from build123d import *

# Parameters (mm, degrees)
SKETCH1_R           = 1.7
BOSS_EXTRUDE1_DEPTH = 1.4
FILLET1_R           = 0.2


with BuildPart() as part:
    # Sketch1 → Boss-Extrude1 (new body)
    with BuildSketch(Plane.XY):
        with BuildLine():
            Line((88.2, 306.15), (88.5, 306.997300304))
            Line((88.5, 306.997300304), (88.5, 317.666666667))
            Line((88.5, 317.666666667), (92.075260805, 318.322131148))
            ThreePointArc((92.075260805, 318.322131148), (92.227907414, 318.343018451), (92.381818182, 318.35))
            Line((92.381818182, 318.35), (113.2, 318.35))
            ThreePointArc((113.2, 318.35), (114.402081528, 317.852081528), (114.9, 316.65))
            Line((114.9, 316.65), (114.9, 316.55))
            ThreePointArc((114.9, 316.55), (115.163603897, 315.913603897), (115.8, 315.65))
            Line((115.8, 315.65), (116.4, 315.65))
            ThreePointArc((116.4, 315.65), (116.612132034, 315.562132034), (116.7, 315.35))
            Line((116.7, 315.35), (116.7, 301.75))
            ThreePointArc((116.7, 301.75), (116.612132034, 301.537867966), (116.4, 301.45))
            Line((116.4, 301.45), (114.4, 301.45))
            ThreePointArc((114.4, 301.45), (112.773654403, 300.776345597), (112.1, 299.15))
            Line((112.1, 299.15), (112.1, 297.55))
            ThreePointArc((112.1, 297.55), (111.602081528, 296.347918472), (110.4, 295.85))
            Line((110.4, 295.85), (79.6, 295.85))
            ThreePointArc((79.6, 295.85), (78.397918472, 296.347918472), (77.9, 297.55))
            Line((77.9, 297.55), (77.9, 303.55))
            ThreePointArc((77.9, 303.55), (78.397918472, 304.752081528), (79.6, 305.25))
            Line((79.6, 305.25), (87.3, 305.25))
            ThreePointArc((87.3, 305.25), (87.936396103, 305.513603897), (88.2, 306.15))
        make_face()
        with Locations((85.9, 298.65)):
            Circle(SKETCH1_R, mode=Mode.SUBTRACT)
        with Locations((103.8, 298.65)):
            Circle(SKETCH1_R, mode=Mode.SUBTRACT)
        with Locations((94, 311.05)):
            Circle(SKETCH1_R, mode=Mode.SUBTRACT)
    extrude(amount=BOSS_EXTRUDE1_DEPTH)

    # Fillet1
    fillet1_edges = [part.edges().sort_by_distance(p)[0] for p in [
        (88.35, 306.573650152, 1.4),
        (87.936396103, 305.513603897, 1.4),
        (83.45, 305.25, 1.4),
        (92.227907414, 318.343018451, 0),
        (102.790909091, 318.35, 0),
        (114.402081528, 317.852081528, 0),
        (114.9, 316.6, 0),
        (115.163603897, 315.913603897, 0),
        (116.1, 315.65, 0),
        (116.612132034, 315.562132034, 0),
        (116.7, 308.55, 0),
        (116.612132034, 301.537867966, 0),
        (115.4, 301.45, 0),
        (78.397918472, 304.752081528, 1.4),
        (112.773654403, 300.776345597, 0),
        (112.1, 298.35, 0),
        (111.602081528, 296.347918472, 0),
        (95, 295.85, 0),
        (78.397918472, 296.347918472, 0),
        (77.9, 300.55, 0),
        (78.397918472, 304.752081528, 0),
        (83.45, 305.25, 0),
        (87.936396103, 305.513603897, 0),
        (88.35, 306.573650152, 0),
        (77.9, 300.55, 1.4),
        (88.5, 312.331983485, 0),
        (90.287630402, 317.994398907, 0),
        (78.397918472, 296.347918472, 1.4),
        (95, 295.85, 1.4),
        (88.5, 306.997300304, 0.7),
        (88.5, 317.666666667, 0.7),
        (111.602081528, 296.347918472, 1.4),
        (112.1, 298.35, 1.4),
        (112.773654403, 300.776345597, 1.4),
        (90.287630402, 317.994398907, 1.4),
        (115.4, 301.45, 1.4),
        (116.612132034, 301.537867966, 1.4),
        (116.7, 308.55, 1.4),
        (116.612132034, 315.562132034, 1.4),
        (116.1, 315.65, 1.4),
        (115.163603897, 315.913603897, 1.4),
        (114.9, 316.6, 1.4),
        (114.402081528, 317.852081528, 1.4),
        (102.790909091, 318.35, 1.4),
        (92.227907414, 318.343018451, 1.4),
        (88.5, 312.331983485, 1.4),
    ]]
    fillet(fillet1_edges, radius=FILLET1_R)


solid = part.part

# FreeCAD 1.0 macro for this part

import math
import FreeCAD as App
import Part
import Sketcher


def edges_at(feature, points):
    """Names of the edges that pass closest to the given points."""
    edges = feature.Shape.Edges
    near = lambda p: min(range(len(edges)), key=lambda i: edges[i].distToShape(Part.Vertex(*p))[0])
    return sorted({f"Edge{near(p) + 1}" for p in points})

doc = App.newDocument("Part")
body = doc.addObject("PartDesign::Body", "Body")

# Sketch on XY plane
sketch1 = body.newObject("Sketcher::SketchObject", "Sketch")
sketch1.AttachmentSupport = (doc.getObject("XY_Plane"), [""])
sketch1.MapMode = "FlatFace"
sketch1.addGeometry([
    Part.LineSegment(App.Vector(88.5, 307, 0), App.Vector(88.2, 306.15, 0)),  # 0
    Part.ArcOfCircle(Part.Circle(App.Vector(87.3, 306.15, 0), App.Vector(0, 0, 1), 0.9), math.radians(-90), math.radians(0)),  # 1
    Part.LineSegment(App.Vector(87.3, 305.25, 0), App.Vector(79.6, 305.25, 0)),  # 2
    Part.ArcOfCircle(Part.Circle(App.Vector(79.6, 303.55, 0), App.Vector(0, 0, 1), 1.7), math.radians(90), math.radians(180)),  # 3
    Part.LineSegment(App.Vector(77.9, 303.55, 0), App.Vector(77.9, 297.55, 0)),  # 4
    Part.ArcOfCircle(Part.Circle(App.Vector(79.6, 297.55, 0), App.Vector(0, 0, 1), 1.7), math.radians(180), math.radians(270)),  # 5
    Part.LineSegment(App.Vector(79.6, 295.85, 0), App.Vector(110.4, 295.85, 0)),  # 6
    Part.ArcOfCircle(Part.Circle(App.Vector(110.4, 297.55, 0), App.Vector(0, 0, 1), 1.7), math.radians(-90), math.radians(0)),  # 7
    Part.LineSegment(App.Vector(112.1, 297.55, 0), App.Vector(112.1, 299.15, 0)),  # 8
    Part.ArcOfCircle(Part.Circle(App.Vector(114.4, 299.15, 0), App.Vector(0, 0, 1), 2.3), math.radians(90), math.radians(180)),  # 9
    Part.LineSegment(App.Vector(114.4, 301.45, 0), App.Vector(116.4, 301.45, 0)),  # 10
    Part.ArcOfCircle(Part.Circle(App.Vector(116.4, 301.75, 0), App.Vector(0, 0, 1), 0.3), math.radians(-90), math.radians(0)),  # 11
    Part.LineSegment(App.Vector(116.7, 301.75, 0), App.Vector(116.7, 315.35, 0)),  # 12
    Part.ArcOfCircle(Part.Circle(App.Vector(116.4, 315.35, 0), App.Vector(0, 0, 1), 0.3), math.radians(0), math.radians(90)),  # 13
    Part.LineSegment(App.Vector(116.4, 315.65, 0), App.Vector(115.8, 315.65, 0)),  # 14
    Part.ArcOfCircle(Part.Circle(App.Vector(115.8, 316.55, 0), App.Vector(0, 0, 1), 0.9), math.radians(180), math.radians(270)),  # 15
    Part.LineSegment(App.Vector(114.9, 316.55, 0), App.Vector(114.9, 316.65, 0)),  # 16
    Part.ArcOfCircle(Part.Circle(App.Vector(113.2, 316.65, 0), App.Vector(0, 0, 1), 1.7), math.radians(0), math.radians(90)),  # 17
    Part.LineSegment(App.Vector(113.2, 318.35, 0), App.Vector(92.38, 318.35, 0)),  # 18
    Part.ArcOfCircle(Part.Circle(App.Vector(92.38, 316.65, 0), App.Vector(0, 0, 1), 1.7), math.radians(90), math.radians(100.39)),  # 19
    Part.LineSegment(App.Vector(92.08, 318.32, 0), App.Vector(88.5, 317.67, 0)),  # 20
    Part.LineSegment(App.Vector(88.5, 317.67, 0), App.Vector(88.5, 307, 0)),  # 21
    Part.Circle(App.Vector(103.8, 298.65, 0), App.Vector(0, 0, 1), 1.7),  # 22
    Part.Circle(App.Vector(85.9, 298.65, 0), App.Vector(0, 0, 1), 1.7),  # 23
    Part.Circle(App.Vector(94, 311.05, 0), App.Vector(0, 0, 1), 1.7),  # 24
], False)
sketch1.addConstraint([
    Sketcher.Constraint("Coincident", 0, 2, 1, 2),
    Sketcher.Constraint("Tangent", 1, 1, 2, 1),
    Sketcher.Constraint("Tangent", 2, 2, 3, 1),
    Sketcher.Constraint("Tangent", 3, 2, 4, 1),
    Sketcher.Constraint("Tangent", 4, 2, 5, 1),
    Sketcher.Constraint("Tangent", 5, 2, 6, 1),
    Sketcher.Constraint("Tangent", 6, 2, 7, 1),
    Sketcher.Constraint("Tangent", 7, 2, 8, 1),
    Sketcher.Constraint("Tangent", 8, 2, 9, 2),
    Sketcher.Constraint("Tangent", 9, 1, 10, 1),
    Sketcher.Constraint("Tangent", 10, 2, 11, 1),
    Sketcher.Constraint("Tangent", 11, 2, 12, 1),
    Sketcher.Constraint("Tangent", 12, 2, 13, 1),
    Sketcher.Constraint("Tangent", 13, 2, 14, 1),
    Sketcher.Constraint("Tangent", 14, 2, 15, 2),
    Sketcher.Constraint("Tangent", 15, 1, 16, 1),
    Sketcher.Constraint("Tangent", 16, 2, 17, 1),
    Sketcher.Constraint("Tangent", 17, 2, 18, 1),
    Sketcher.Constraint("Tangent", 18, 2, 19, 1),
    Sketcher.Constraint("Tangent", 19, 2, 20, 1),
    Sketcher.Constraint("Coincident", 20, 2, 21, 1),
    Sketcher.Constraint("Coincident", 21, 2, 0, 1),
    Sketcher.Constraint("Horizontal", 2),
    Sketcher.Constraint("Vertical", 4),
    Sketcher.Constraint("Horizontal", 6),
    Sketcher.Constraint("Vertical", 8),
    Sketcher.Constraint("Horizontal", 10),
    Sketcher.Constraint("Vertical", 12),
    Sketcher.Constraint("Horizontal", 14),
    Sketcher.Constraint("Vertical", 16),
    Sketcher.Constraint("Horizontal", 18),
    Sketcher.Constraint("Vertical", 21),
    Sketcher.Constraint("Equal", 3, 5),
    Sketcher.Constraint("Equal", 5, 7),
    Sketcher.Constraint("Equal", 11, 13),
    Sketcher.Constraint("Equal", 1, 15),
    Sketcher.Constraint("Equal", 7, 17),
    Sketcher.Constraint("Equal", 17, 19),
    Sketcher.Constraint("Equal", 19, 22),
    Sketcher.Constraint("Equal", 22, 23),
    Sketcher.Constraint("Equal", 23, 24),
    Sketcher.Constraint("Horizontal", 22, 3, 23, 3),
    Sketcher.Constraint("Horizontal", 1, 3, 0, 2),
    Sketcher.Constraint("Diameter", 22, 3.4),
    Sketcher.Constraint("Radius", 1, 0.9),
    Sketcher.Constraint("Radius", 9, 2.3),
    Sketcher.Constraint("Radius", 11, 0.3),
    Sketcher.Constraint("DistanceX", 10, 1, 10, 2, 2.0),
    Sketcher.Constraint("DistanceY", 4, 2, 4, 1, 6.0),
    Sketcher.Constraint("DistanceX", 2, 2, 2, 1, 7.7),
    Sketcher.Constraint("DistanceX", 6, 1, 6, 2, 30.8),
    Sketcher.Constraint("DistanceX", 14, 2, 14, 1, 0.6),
    Sketcher.Constraint("DistanceY", 8, 1, 8, 2, 1.6),
    Sketcher.Constraint("DistanceY", 12, 1, 12, 2, 13.6),
    Sketcher.Constraint("DistanceY", 16, 1, 16, 2, 0.1),
    Sketcher.Constraint("DistanceX", -1, 1, 24, 3, 94.0),
    Sketcher.Constraint("DistanceY", 22, 3, 17, 3, 18.0),
    Sketcher.Constraint("DistanceX", 3, 2, 23, 3, 8.0),
    Sketcher.Constraint("DistanceX", -1, 1, 1, 3, 87.3),
    Sketcher.Constraint("DistanceX", -1, 1, 22, 3, 103.8),
    Sketcher.Constraint("DistanceX", -1, 1, 20, 2, 88.5),
    Sketcher.Constraint("DistanceY", 24, 3, 19, 3, 5.6),
    Sketcher.Constraint("DistanceY", -1, 1, 1, 3, 306.15),
    Sketcher.Constraint("DistanceX", 18, 2, 18, 1, 20.818182),
    Sketcher.Constraint("DistanceY", -1, 1, 21, 2, 306.9973),
    Sketcher.Constraint("Distance", 20, 3.634848),
])
pad1 = body.newObject("PartDesign::Pad", "Pad")
pad1.Profile = sketch1
pad1.Length = 1.4
doc.recompute()

fillet = body.newObject("PartDesign::Fillet", "Fillet")
fillet.Base = (pad1, edges_at(pad1, [
    (88.35, 306.574, 1.4),
    (87.936, 305.514, 1.4),
    (83.45, 305.25, 1.4),
    (92.228, 318.343, 0),
    (102.791, 318.35, 0),
    (114.402, 317.852, 0),
    (114.9, 316.6, 0),
    (115.164, 315.914, 0),
    (116.1, 315.65, 0),
    (116.612, 315.562, 0),
    (116.7, 308.55, 0),
    (116.612, 301.538, 0),
    (115.4, 301.45, 0),
    (78.398, 304.752, 1.4),
    (112.774, 300.776, 0),
    (112.1, 298.35, 0),
    (111.602, 296.348, 0),
    (95, 295.85, 0),
    (78.398, 296.348, 0),
    (77.9, 300.55, 0),
    (78.398, 304.752, 0),
    (83.45, 305.25, 0),
    (87.936, 305.514, 0),
    (88.35, 306.574, 0),
    (77.9, 300.55, 1.4),
    (88.5, 312.332, 0),
    (90.288, 317.994, 0),
    (78.398, 296.348, 1.4),
    (95, 295.85, 1.4),
    (88.5, 306.997, 0.7),
    (88.5, 317.667, 0.7),
    (111.602, 296.348, 1.4),
    (112.1, 298.35, 1.4),
    (112.774, 300.776, 1.4),
    (90.288, 317.994, 1.4),
    (115.4, 301.45, 1.4),
    (116.612, 301.538, 1.4),
    (116.7, 308.55, 1.4),
    (116.612, 315.562, 1.4),
    (116.1, 315.65, 1.4),
    (115.164, 315.914, 1.4),
    (114.9, 316.6, 1.4),
    (114.402, 317.852, 1.4),
    (102.791, 318.35, 1.4),
    (92.228, 318.343, 1.4),
    (88.5, 312.332, 1.4),
]))
fillet.Radius = 0.2

doc.recompute()
